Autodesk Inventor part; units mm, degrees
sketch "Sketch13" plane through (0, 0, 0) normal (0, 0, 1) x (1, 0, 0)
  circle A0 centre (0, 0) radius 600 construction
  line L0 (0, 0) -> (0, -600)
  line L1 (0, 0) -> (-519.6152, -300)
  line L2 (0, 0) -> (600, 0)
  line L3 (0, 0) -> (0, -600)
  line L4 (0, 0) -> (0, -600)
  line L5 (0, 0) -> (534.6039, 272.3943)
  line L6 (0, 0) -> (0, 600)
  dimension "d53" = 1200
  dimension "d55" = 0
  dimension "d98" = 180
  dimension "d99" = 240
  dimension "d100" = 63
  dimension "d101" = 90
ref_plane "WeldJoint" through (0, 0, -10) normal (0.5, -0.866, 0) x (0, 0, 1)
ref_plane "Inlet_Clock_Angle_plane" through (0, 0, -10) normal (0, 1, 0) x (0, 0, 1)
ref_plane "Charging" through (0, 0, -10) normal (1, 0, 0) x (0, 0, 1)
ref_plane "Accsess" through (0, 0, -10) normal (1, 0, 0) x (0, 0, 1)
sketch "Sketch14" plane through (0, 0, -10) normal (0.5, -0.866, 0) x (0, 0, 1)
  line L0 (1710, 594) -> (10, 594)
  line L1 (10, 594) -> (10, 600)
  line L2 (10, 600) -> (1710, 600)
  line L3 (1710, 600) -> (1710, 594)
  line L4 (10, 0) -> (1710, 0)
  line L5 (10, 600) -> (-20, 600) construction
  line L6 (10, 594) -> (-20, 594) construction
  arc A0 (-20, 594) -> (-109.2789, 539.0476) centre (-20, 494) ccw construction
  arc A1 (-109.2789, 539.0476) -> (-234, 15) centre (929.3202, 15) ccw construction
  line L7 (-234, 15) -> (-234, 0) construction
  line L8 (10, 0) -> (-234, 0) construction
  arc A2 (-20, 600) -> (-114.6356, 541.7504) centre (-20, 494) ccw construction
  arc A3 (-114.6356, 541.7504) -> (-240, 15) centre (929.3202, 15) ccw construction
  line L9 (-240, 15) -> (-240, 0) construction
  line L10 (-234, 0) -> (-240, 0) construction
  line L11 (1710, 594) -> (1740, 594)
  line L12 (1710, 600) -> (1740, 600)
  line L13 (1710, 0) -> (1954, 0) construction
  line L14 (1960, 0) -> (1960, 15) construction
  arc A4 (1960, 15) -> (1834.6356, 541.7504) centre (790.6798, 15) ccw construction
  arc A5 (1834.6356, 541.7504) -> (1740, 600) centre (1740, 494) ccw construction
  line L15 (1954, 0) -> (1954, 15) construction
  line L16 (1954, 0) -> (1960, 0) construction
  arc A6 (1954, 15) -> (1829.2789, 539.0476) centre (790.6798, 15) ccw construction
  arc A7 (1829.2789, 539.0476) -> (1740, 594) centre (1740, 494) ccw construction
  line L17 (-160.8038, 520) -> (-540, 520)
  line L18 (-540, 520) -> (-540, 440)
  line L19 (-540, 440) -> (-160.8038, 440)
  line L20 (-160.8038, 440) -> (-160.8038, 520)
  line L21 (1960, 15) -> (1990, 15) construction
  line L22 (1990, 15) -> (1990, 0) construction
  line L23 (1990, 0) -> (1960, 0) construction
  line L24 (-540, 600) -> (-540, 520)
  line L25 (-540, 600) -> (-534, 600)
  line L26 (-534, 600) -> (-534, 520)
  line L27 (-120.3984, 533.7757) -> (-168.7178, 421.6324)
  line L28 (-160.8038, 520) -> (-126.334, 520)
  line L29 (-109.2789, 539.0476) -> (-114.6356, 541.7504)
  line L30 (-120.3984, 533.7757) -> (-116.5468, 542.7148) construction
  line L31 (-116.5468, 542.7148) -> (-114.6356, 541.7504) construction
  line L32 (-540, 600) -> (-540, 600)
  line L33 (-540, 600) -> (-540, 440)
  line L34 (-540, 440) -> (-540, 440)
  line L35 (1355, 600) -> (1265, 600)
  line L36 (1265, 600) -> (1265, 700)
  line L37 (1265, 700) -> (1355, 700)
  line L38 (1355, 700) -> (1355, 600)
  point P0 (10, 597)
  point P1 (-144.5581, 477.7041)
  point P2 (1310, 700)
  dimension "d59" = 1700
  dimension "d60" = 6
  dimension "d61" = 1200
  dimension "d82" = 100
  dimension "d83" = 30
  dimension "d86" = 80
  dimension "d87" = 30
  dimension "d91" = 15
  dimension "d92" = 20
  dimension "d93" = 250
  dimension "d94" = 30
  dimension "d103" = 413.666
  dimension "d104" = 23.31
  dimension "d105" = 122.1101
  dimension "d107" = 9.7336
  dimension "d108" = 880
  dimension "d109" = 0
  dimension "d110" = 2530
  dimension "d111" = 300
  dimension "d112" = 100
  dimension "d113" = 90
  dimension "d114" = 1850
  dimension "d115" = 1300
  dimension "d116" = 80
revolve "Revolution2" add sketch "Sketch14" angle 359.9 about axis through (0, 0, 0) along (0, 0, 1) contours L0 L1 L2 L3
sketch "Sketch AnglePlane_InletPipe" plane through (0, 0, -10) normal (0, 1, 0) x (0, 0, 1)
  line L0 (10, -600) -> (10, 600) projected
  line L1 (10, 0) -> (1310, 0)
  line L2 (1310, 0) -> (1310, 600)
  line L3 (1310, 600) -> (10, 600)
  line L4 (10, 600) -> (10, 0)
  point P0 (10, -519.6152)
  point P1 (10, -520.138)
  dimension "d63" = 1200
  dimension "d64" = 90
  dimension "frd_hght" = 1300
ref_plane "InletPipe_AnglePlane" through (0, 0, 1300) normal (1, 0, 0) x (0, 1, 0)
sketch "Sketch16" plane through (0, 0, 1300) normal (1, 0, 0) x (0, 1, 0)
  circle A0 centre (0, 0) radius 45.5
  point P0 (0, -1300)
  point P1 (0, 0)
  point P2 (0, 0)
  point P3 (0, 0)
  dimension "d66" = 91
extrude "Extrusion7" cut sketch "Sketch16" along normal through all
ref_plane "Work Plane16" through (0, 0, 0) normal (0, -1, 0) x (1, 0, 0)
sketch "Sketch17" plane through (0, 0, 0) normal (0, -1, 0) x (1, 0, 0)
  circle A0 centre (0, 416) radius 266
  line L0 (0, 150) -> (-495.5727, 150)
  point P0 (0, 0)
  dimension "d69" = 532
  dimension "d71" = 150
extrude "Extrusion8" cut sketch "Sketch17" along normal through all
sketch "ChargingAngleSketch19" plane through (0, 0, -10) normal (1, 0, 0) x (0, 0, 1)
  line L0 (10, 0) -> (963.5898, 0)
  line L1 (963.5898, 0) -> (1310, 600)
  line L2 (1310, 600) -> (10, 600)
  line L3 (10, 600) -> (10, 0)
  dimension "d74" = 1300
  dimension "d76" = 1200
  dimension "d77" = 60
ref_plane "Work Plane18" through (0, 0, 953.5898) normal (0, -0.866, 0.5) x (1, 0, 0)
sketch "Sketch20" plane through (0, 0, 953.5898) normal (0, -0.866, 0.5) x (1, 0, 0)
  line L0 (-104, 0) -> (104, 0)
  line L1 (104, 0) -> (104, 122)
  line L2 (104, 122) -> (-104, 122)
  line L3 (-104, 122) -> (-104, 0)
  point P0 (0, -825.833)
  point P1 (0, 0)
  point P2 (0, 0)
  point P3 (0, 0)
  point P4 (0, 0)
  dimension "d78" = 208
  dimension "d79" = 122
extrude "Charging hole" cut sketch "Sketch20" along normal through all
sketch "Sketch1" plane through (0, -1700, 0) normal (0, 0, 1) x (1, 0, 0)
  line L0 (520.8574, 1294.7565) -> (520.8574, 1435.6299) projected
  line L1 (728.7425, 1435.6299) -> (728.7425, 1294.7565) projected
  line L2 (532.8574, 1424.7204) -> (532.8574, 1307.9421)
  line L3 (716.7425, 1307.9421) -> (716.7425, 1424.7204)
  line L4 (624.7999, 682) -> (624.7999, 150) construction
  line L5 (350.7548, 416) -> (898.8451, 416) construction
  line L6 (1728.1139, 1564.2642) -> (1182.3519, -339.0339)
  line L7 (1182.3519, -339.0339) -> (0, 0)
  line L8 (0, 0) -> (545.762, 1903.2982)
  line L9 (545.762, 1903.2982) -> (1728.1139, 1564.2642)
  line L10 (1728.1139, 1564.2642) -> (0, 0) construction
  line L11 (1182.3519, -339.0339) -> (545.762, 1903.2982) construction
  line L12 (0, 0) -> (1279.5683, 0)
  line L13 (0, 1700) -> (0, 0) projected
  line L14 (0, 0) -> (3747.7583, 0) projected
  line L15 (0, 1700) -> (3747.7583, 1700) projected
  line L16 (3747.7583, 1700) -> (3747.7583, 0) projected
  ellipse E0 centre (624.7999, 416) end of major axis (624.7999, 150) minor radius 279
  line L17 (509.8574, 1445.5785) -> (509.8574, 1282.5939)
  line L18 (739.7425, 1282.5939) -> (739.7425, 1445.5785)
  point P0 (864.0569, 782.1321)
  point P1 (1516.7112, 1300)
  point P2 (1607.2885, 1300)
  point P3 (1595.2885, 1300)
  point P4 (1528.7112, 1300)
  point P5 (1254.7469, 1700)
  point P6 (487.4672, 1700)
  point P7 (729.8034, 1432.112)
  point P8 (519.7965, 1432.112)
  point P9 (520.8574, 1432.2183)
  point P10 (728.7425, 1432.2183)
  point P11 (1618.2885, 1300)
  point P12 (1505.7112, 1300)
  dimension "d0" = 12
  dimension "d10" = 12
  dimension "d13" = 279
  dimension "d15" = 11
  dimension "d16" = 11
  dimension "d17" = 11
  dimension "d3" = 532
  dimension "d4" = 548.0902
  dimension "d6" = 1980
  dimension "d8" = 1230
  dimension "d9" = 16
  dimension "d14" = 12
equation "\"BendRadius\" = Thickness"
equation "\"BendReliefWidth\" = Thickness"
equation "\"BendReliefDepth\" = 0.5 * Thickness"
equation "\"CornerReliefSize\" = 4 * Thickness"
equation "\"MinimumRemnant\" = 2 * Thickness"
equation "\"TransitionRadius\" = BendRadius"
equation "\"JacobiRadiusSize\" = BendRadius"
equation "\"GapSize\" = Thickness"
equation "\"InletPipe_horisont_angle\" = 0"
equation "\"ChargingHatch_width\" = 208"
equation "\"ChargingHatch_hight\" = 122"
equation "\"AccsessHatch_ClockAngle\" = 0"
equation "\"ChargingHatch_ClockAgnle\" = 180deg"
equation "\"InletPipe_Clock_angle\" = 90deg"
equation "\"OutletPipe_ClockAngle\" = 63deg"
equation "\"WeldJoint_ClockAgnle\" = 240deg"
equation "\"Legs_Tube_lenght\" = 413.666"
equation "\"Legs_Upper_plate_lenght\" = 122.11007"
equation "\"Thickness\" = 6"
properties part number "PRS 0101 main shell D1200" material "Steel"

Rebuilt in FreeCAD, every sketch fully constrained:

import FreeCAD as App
import Part
import Sketcher

V = App.Vector
Q = App.Units.Quantity


def add_polygon(sketch, points):
    """Adds a closed chain of lines whose ends are joined by coincident constraints."""
    first, n = sketch.GeometryCount, len(points)
    for a, b in zip(points, points[1:] + points[:1]):
        sketch.addGeometry(Part.LineSegment(App.Vector(*a, 0), App.Vector(*b, 0)), False)
    for i in range(n):
        sketch.addConstraint(Sketcher.Constraint("Coincident", first + i, 2, first + (i + 1) % n, 1))

doc = App.newDocument("Part")
body = doc.addObject("PartDesign::Body", "Body")

sketch1 = body.newObject("Sketcher::SketchObject", "Sketch")
sketch1.Placement = App.Placement(V(0, 0, -10), App.Rotation(V(0, 0, 1), V(-0.866025404, -0.5, 0), V(0.5, -0.866025404, 0), "ZXY"))
add_polygon(sketch1, [(10, 594), (1710, 594), (1710, 600), (10, 600)])
sketch1.addConstraint([
    Sketcher.Constraint("Horizontal", 0),
    Sketcher.Constraint("Vertical", 1),
    Sketcher.Constraint("Horizontal", 2),
    Sketcher.Constraint("Vertical", 3),
    Sketcher.Constraint("DistanceX", 0, 1, 0, 2, Q("1700 mm")),
    Sketcher.Constraint("DistanceY", 1, 1, 1, 2, Q("6 mm")),
    Sketcher.Constraint("DistanceX", -1, 1, 0, 2, Q("1710 mm")),
    Sketcher.Constraint("DistanceY", -1, 1, 0, 2, Q("594 mm")),
])
revolution = body.newObject("PartDesign::Revolution", "Revolution")
revolution.Profile = sketch1
revolution.ReferenceAxis = (sketch1, ["H_Axis"])
revolution.Angle = 359.9

sketch2 = body.newObject("Sketcher::SketchObject", "Sketch001")
sketch2.AttachmentSupport = (doc.getObject("YZ_Plane"), [""])
sketch2.MapMode = "FlatFace"
sketch2.addGeometry(Part.Circle(V(0, 1300, 0), V(0, 0, 1), 46), False)
sketch2.addConstraint([
    Sketcher.Constraint("PointOnObject", 0, 3, -2),
    Sketcher.Constraint("Diameter", 0, Q("91 mm")),
    Sketcher.Constraint("DistanceY", -1, 1, 0, 3, Q("1300 mm")),
])
pocket1 = body.newObject("PartDesign::Pocket", "Pocket")
pocket1.Profile = sketch2
pocket1.Type = "ThroughAll"
pocket1.Reversed = True

sketch3 = body.newObject("Sketcher::SketchObject", "Sketch002")
sketch3.AttachmentSupport = (doc.getObject("XZ_Plane"), [""])
sketch3.MapMode = "FlatFace"
sketch3.addGeometry(Part.Circle(V(0, 416, 0), V(0, 0, 1), 266), False)
sketch3.addConstraint([
    Sketcher.Constraint("PointOnObject", 0, 3, -2),
    Sketcher.Constraint("Diameter", 0, Q("532 mm")),
    Sketcher.Constraint("DistanceY", -1, 1, 0, 3, Q("416 mm")),
])
pocket2 = body.newObject("PartDesign::Pocket", "Pocket001")
pocket2.Profile = sketch3
pocket2.Type = "ThroughAll"
pocket2.Reversed = True

sketch4 = body.newObject("Sketcher::SketchObject", "Sketch003")
sketch4.Placement = App.Placement(V(0, 0, 953.5898), App.Rotation(V(1, 0, 0), V(0, 0.5, 0.866025404), V(0, -0.866025404, 0.5), "ZXY"))
add_polygon(sketch4, [(-104, 122), (-104, 0), (104, 0), (104, 122)])
sketch4.addConstraint([
    Sketcher.Constraint("Vertical", 0),
    Sketcher.Constraint("Horizontal", 1),
    Sketcher.Constraint("Vertical", 2),
    Sketcher.Constraint("Horizontal", 3),
    Sketcher.Constraint("Symmetric", 0, 2, 1, 2, -1, 1),
    Sketcher.Constraint("DistanceX", 1, 1, 1, 2, Q("208 mm")),
    Sketcher.Constraint("DistanceY", 0, 2, 0, 1, Q("122 mm")),
])
pocket3 = body.newObject("PartDesign::Pocket", "Pocket002")
pocket3.Profile = sketch4
pocket3.Type = "ThroughAll"
pocket3.Reversed = True

doc.recompute()
